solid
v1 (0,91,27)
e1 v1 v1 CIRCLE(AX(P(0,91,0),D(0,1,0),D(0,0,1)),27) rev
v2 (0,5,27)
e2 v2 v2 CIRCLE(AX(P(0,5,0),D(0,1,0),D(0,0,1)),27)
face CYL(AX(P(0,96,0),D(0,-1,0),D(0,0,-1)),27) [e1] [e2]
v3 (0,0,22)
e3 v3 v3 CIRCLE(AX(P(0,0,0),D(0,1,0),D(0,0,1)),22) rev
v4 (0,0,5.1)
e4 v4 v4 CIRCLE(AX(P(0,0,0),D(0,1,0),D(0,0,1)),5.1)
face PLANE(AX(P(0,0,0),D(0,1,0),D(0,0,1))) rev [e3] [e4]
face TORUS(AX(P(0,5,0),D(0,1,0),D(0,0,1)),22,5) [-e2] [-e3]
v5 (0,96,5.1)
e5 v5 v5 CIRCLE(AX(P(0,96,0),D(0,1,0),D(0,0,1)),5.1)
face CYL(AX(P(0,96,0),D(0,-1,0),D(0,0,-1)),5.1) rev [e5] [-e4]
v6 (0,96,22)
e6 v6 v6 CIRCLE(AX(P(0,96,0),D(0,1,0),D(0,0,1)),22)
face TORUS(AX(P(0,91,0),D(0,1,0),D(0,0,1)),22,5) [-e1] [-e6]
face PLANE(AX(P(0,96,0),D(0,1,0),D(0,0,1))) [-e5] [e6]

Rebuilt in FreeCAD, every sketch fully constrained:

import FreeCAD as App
import Part
import Sketcher
Q = App.Units.Quantity


def edges_at(feature, points):
    """Names of the edges that pass closest to the given points."""
    edges = feature.Shape.Edges
    near = lambda p: min(range(len(edges)), key=lambda i: edges[i].distToShape(Part.Vertex(*p))[0])
    return sorted({f"Edge{near(p) + 1}" for p in points})

doc = App.newDocument("Part")
params = doc.addObject("Spreadsheet::Sheet", "Params")
for row, (alias, value) in enumerate([
    ("sketch1_diameter", "54 mm"),
    ("sketch1_diameter2", "10.2 mm"),
    ("pad1_length", "96 mm"),
    ("fillet_radius", "5 mm"),
], start=1):
    params.set(f"A{row}", alias)
    params.set(f"B{row}", "=" + value)
    params.setAlias(f"B{row}", alias)

body = doc.addObject("PartDesign::Body", "Body")

# Sketch on XZ plane
sketch1 = body.newObject("Sketcher::SketchObject", "Sketch")
sketch1.AttachmentSupport = (doc.getObject("XZ_Plane"), [""])
sketch1.MapMode = "FlatFace"
sketch1.addGeometry([
    Part.Circle(App.Vector(0, 0, 0), App.Vector(0, 0, 1), 27),
    Part.Circle(App.Vector(0, 0, 0), App.Vector(0, 0, 1), 5.1),
], False)
sketch1.addConstraint([
    Sketcher.Constraint("Coincident", 0, 3, -1, 1),
    Sketcher.Constraint("Coincident", 1, 3, -1, 1),
    Sketcher.Constraint("Diameter", 0, Q("54 mm")),
    Sketcher.Constraint("Diameter", 1, Q("10.2 mm")),
])
sketch1.setExpression("Constraints[2]", "Params.sketch1_diameter")
sketch1.setExpression("Constraints[3]", "Params.sketch1_diameter2")
pad1 = body.newObject("PartDesign::Pad", "Pad")
pad1.Profile = sketch1
pad1.setExpression("Length", "Params.pad1_length")
pad1.Reversed = True
doc.recompute()

fillet = body.newObject("PartDesign::Fillet", "Fillet")
fillet.Base = (pad1, edges_at(pad1, [(0, 0, -27), (0, 96, -27)]))
fillet.setExpression("Radius", "Params.fillet_radius")

doc.recompute()
